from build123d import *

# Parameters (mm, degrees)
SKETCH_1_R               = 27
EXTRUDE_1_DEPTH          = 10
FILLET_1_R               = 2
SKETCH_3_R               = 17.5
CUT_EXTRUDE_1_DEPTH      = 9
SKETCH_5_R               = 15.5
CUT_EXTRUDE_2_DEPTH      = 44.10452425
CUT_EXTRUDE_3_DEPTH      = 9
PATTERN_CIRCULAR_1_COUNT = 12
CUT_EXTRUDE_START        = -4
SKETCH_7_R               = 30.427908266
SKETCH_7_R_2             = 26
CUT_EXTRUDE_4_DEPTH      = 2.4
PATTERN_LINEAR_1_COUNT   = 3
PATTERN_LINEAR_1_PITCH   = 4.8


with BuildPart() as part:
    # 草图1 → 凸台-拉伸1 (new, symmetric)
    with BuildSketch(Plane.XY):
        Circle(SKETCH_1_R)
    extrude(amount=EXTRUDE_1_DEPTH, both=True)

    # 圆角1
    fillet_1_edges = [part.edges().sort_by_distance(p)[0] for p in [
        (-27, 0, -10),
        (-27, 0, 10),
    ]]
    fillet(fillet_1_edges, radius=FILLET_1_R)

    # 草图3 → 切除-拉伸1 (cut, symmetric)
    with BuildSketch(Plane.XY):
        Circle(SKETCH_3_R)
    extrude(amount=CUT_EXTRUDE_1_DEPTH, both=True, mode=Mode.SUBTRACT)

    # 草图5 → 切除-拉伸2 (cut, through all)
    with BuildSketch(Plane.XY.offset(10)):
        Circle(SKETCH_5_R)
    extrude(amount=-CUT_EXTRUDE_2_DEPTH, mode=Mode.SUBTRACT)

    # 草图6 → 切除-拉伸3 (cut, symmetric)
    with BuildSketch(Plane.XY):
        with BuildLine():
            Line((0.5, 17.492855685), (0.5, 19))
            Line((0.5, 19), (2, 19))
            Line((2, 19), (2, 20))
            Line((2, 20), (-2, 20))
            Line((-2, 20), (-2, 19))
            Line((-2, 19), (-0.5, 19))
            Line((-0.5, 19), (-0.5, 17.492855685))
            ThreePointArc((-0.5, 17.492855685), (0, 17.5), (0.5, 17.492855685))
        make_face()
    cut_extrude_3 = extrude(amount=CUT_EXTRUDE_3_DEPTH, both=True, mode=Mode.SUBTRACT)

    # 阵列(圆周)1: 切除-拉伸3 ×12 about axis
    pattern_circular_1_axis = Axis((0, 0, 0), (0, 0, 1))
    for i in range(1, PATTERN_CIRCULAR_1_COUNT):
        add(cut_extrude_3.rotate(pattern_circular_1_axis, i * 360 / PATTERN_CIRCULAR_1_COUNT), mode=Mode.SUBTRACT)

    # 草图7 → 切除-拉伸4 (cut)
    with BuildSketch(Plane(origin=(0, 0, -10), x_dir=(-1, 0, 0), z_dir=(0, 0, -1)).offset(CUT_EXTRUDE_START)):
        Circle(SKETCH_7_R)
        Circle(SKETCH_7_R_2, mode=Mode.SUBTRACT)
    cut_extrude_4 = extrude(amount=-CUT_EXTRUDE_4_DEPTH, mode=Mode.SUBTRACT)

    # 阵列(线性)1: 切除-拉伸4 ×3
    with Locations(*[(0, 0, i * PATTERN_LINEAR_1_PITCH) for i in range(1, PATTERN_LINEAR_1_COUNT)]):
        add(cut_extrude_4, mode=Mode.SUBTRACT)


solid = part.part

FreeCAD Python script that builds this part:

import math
import FreeCAD as App
import Part
import Sketcher


def edges_at(feature, points):
    """Names of the edges that pass closest to the given points."""
    edges = feature.Shape.Edges
    near = lambda p: min(range(len(edges)), key=lambda i: edges[i].distToShape(Part.Vertex(*p))[0])
    return sorted({f"Edge{near(p) + 1}" for p in points})

doc = App.newDocument("Part")
body = doc.addObject("PartDesign::Body", "Body")

sketch1 = doc.addObject("Sketcher::SketchObject", "Sketch")
body.addObject(sketch1)
sketch1.AttachmentSupport = (doc.XY_Plane, [""])
sketch1.MapMode = "FlatFace"
sketch1.addGeometry(Part.Circle(App.Vector(0, 0, 0), App.Vector(0, 0, 1), 27), False)
sketch1.addConstraint([
    Sketcher.Constraint("Coincident", 0, 3, -1, 1),
    Sketcher.Constraint("Diameter", 0, 54.0),
])
pad1 = doc.addObject("PartDesign::Pad", "Pad")
body.addObject(pad1)
pad1.Profile = sketch1
pad1.Length = 20
pad1.Midplane = True
doc.recompute()

fillet = doc.addObject("PartDesign::Fillet", "Fillet")
body.addObject(fillet)
fillet.Base = (pad1, edges_at(pad1, [(-27, 0, -10), (-27, 0, 10)]))
fillet.Radius = 2

sketch2 = doc.addObject("Sketcher::SketchObject", "Sketch001")
body.addObject(sketch2)
sketch2.AttachmentSupport = (doc.XY_Plane, [""])
sketch2.MapMode = "FlatFace"
sketch2.addGeometry(Part.Circle(App.Vector(0, 0, 0), App.Vector(0, 0, 1), 18), False)
sketch2.addConstraint([
    Sketcher.Constraint("Coincident", 0, 3, -1, 1),
    Sketcher.Constraint("Diameter", 0, 35.0),
])
pocket1 = doc.addObject("PartDesign::Pocket", "Pocket")
body.addObject(pocket1)
pocket1.Profile = sketch2
pocket1.Length = 18
pocket1.Midplane = True

sketch3 = doc.addObject("Sketcher::SketchObject", "Sketch002")
body.addObject(sketch3)
sketch3.AttachmentSupport = (doc.XY_Plane, [""])
sketch3.MapMode = "FlatFace"
sketch3.AttachmentOffset = App.Placement(App.Vector(0, 0, 10), App.Rotation())
sketch3.addGeometry(Part.Circle(App.Vector(0, 0, 0), App.Vector(0, 0, 1), 16), False)
sketch3.addConstraint([
    Sketcher.Constraint("Coincident", 0, 3, -1, 1),
    Sketcher.Constraint("Diameter", 0, 31.0),
])
pocket2 = doc.addObject("PartDesign::Pocket", "Pocket001")
body.addObject(pocket2)
pocket2.Profile = sketch3
pocket2.Type = "ThroughAll"

sketch4 = doc.addObject("Sketcher::SketchObject", "Sketch003")
body.addObject(sketch4)
sketch4.AttachmentSupport = (doc.XY_Plane, [""])
sketch4.MapMode = "FlatFace"
sketch4.addGeometry([
    Part.LineSegment(App.Vector(0.5, 17.5, 0), App.Vector(0.5, 19, 0)),
    Part.LineSegment(App.Vector(0.5, 19, 0), App.Vector(2, 19, 0)),
    Part.LineSegment(App.Vector(2, 19, 0), App.Vector(2, 20, 0)),
    Part.LineSegment(App.Vector(2, 20, 0), App.Vector(-2, 20, 0)),
    Part.LineSegment(App.Vector(-2, 20, 0), App.Vector(-2, 19, 0)),
    Part.LineSegment(App.Vector(-2, 19, 0), App.Vector(-0.5, 19, 0)),
    Part.LineSegment(App.Vector(-0.5, 19, 0), App.Vector(-0.5, 17.5, 0)),
    Part.ArcOfCircle(Part.Circle(App.Vector(0, 0, 0), App.Vector(0, 0, 1), 17.5), math.radians(88.36), math.radians(91.64)),
], False)
sketch4.addConstraint([
    Sketcher.Constraint("Coincident", 0, 2, 1, 1),
    Sketcher.Constraint("Coincident", 1, 2, 2, 1),
    Sketcher.Constraint("Coincident", 2, 2, 3, 1),
    Sketcher.Constraint("Coincident", 3, 2, 4, 1),
    Sketcher.Constraint("Coincident", 4, 2, 5, 1),
    Sketcher.Constraint("Coincident", 5, 2, 6, 1),
    Sketcher.Constraint("Coincident", 6, 2, 7, 2),
    Sketcher.Constraint("Coincident", 7, 1, 0, 1),
    Sketcher.Constraint("Vertical", 0),
    Sketcher.Constraint("Horizontal", 1),
    Sketcher.Constraint("Vertical", 2),
    Sketcher.Constraint("Horizontal", 3),
    Sketcher.Constraint("Vertical", 4),
    Sketcher.Constraint("Horizontal", 5),
    Sketcher.Constraint("Vertical", 6),
    Sketcher.Constraint("Coincident", 7, 3, -1, 1),
    Sketcher.Constraint("Symmetric", 1, 2, 4, 2, -2),
    Sketcher.Constraint("Horizontal", 6, 2, 7, 1),
    Sketcher.Constraint("Radius", 7, 17.500001),
    Sketcher.Constraint("DistanceX", 3, 2, 3, 1, 4.0),
    Sketcher.Constraint("DistanceY", 2, 1, 2, 2, 1.0),
    Sketcher.Constraint("DistanceX", 1, 1, 1, 2, 1.5),
    Sketcher.Constraint("DistanceY", -1, 1, 0, 2, 19.0),
])
pocket3 = doc.addObject("PartDesign::Pocket", "Pocket002")
body.addObject(pocket3)
pocket3.Profile = sketch4
pocket3.Length = 18
pocket3.Midplane = True
doc.recompute()

polarpattern = doc.addObject("PartDesign::PolarPattern", "PolarPattern")
body.addObject(polarpattern)
polarpattern.Originals = [pocket3]
polarpattern.Axis = (doc.Z_Axis, [""])
polarpattern.Angle = 360
polarpattern.Occurrences = 12
body.Tip = polarpattern

sketch5 = doc.addObject("Sketcher::SketchObject", "Sketch004")
body.addObject(sketch5)
sketch5.AttachmentSupport = (doc.XY_Plane, [""])
sketch5.MapMode = "FlatFace"
sketch5.AttachmentOffset = App.Placement(App.Vector(0, 0, -6), App.Rotation())
sketch5.addGeometry([
    Part.Circle(App.Vector(0, 0, 0), App.Vector(0, 0, 1), 30),
    Part.Circle(App.Vector(0, 0, 0), App.Vector(0, 0, 1), 26),
], False)
sketch5.addConstraint([
    Sketcher.Constraint("Coincident", 0, 3, -1, 1),
    Sketcher.Constraint("Coincident", 1, 3, -1, 1),
    Sketcher.Constraint("Diameter", 1, 52.0),
    Sketcher.Constraint("Diameter", 0, 60.855817),
])
pocket4 = doc.addObject("PartDesign::Pocket", "Pocket003")
body.addObject(pocket4)
pocket4.Profile = sketch5
pocket4.Length = 2.4
pocket4.Reversed = True
doc.recompute()

linearpattern = doc.addObject("PartDesign::LinearPattern", "LinearPattern")
body.addObject(linearpattern)
linearpattern.Originals = [pocket4]
linearpattern.Direction = (doc.Z_Axis, [""])
linearpattern.Mode = "offset"
linearpattern.Offset = 4.8
linearpattern.Occurrences = 3
body.Tip = linearpattern

doc.recompute()
